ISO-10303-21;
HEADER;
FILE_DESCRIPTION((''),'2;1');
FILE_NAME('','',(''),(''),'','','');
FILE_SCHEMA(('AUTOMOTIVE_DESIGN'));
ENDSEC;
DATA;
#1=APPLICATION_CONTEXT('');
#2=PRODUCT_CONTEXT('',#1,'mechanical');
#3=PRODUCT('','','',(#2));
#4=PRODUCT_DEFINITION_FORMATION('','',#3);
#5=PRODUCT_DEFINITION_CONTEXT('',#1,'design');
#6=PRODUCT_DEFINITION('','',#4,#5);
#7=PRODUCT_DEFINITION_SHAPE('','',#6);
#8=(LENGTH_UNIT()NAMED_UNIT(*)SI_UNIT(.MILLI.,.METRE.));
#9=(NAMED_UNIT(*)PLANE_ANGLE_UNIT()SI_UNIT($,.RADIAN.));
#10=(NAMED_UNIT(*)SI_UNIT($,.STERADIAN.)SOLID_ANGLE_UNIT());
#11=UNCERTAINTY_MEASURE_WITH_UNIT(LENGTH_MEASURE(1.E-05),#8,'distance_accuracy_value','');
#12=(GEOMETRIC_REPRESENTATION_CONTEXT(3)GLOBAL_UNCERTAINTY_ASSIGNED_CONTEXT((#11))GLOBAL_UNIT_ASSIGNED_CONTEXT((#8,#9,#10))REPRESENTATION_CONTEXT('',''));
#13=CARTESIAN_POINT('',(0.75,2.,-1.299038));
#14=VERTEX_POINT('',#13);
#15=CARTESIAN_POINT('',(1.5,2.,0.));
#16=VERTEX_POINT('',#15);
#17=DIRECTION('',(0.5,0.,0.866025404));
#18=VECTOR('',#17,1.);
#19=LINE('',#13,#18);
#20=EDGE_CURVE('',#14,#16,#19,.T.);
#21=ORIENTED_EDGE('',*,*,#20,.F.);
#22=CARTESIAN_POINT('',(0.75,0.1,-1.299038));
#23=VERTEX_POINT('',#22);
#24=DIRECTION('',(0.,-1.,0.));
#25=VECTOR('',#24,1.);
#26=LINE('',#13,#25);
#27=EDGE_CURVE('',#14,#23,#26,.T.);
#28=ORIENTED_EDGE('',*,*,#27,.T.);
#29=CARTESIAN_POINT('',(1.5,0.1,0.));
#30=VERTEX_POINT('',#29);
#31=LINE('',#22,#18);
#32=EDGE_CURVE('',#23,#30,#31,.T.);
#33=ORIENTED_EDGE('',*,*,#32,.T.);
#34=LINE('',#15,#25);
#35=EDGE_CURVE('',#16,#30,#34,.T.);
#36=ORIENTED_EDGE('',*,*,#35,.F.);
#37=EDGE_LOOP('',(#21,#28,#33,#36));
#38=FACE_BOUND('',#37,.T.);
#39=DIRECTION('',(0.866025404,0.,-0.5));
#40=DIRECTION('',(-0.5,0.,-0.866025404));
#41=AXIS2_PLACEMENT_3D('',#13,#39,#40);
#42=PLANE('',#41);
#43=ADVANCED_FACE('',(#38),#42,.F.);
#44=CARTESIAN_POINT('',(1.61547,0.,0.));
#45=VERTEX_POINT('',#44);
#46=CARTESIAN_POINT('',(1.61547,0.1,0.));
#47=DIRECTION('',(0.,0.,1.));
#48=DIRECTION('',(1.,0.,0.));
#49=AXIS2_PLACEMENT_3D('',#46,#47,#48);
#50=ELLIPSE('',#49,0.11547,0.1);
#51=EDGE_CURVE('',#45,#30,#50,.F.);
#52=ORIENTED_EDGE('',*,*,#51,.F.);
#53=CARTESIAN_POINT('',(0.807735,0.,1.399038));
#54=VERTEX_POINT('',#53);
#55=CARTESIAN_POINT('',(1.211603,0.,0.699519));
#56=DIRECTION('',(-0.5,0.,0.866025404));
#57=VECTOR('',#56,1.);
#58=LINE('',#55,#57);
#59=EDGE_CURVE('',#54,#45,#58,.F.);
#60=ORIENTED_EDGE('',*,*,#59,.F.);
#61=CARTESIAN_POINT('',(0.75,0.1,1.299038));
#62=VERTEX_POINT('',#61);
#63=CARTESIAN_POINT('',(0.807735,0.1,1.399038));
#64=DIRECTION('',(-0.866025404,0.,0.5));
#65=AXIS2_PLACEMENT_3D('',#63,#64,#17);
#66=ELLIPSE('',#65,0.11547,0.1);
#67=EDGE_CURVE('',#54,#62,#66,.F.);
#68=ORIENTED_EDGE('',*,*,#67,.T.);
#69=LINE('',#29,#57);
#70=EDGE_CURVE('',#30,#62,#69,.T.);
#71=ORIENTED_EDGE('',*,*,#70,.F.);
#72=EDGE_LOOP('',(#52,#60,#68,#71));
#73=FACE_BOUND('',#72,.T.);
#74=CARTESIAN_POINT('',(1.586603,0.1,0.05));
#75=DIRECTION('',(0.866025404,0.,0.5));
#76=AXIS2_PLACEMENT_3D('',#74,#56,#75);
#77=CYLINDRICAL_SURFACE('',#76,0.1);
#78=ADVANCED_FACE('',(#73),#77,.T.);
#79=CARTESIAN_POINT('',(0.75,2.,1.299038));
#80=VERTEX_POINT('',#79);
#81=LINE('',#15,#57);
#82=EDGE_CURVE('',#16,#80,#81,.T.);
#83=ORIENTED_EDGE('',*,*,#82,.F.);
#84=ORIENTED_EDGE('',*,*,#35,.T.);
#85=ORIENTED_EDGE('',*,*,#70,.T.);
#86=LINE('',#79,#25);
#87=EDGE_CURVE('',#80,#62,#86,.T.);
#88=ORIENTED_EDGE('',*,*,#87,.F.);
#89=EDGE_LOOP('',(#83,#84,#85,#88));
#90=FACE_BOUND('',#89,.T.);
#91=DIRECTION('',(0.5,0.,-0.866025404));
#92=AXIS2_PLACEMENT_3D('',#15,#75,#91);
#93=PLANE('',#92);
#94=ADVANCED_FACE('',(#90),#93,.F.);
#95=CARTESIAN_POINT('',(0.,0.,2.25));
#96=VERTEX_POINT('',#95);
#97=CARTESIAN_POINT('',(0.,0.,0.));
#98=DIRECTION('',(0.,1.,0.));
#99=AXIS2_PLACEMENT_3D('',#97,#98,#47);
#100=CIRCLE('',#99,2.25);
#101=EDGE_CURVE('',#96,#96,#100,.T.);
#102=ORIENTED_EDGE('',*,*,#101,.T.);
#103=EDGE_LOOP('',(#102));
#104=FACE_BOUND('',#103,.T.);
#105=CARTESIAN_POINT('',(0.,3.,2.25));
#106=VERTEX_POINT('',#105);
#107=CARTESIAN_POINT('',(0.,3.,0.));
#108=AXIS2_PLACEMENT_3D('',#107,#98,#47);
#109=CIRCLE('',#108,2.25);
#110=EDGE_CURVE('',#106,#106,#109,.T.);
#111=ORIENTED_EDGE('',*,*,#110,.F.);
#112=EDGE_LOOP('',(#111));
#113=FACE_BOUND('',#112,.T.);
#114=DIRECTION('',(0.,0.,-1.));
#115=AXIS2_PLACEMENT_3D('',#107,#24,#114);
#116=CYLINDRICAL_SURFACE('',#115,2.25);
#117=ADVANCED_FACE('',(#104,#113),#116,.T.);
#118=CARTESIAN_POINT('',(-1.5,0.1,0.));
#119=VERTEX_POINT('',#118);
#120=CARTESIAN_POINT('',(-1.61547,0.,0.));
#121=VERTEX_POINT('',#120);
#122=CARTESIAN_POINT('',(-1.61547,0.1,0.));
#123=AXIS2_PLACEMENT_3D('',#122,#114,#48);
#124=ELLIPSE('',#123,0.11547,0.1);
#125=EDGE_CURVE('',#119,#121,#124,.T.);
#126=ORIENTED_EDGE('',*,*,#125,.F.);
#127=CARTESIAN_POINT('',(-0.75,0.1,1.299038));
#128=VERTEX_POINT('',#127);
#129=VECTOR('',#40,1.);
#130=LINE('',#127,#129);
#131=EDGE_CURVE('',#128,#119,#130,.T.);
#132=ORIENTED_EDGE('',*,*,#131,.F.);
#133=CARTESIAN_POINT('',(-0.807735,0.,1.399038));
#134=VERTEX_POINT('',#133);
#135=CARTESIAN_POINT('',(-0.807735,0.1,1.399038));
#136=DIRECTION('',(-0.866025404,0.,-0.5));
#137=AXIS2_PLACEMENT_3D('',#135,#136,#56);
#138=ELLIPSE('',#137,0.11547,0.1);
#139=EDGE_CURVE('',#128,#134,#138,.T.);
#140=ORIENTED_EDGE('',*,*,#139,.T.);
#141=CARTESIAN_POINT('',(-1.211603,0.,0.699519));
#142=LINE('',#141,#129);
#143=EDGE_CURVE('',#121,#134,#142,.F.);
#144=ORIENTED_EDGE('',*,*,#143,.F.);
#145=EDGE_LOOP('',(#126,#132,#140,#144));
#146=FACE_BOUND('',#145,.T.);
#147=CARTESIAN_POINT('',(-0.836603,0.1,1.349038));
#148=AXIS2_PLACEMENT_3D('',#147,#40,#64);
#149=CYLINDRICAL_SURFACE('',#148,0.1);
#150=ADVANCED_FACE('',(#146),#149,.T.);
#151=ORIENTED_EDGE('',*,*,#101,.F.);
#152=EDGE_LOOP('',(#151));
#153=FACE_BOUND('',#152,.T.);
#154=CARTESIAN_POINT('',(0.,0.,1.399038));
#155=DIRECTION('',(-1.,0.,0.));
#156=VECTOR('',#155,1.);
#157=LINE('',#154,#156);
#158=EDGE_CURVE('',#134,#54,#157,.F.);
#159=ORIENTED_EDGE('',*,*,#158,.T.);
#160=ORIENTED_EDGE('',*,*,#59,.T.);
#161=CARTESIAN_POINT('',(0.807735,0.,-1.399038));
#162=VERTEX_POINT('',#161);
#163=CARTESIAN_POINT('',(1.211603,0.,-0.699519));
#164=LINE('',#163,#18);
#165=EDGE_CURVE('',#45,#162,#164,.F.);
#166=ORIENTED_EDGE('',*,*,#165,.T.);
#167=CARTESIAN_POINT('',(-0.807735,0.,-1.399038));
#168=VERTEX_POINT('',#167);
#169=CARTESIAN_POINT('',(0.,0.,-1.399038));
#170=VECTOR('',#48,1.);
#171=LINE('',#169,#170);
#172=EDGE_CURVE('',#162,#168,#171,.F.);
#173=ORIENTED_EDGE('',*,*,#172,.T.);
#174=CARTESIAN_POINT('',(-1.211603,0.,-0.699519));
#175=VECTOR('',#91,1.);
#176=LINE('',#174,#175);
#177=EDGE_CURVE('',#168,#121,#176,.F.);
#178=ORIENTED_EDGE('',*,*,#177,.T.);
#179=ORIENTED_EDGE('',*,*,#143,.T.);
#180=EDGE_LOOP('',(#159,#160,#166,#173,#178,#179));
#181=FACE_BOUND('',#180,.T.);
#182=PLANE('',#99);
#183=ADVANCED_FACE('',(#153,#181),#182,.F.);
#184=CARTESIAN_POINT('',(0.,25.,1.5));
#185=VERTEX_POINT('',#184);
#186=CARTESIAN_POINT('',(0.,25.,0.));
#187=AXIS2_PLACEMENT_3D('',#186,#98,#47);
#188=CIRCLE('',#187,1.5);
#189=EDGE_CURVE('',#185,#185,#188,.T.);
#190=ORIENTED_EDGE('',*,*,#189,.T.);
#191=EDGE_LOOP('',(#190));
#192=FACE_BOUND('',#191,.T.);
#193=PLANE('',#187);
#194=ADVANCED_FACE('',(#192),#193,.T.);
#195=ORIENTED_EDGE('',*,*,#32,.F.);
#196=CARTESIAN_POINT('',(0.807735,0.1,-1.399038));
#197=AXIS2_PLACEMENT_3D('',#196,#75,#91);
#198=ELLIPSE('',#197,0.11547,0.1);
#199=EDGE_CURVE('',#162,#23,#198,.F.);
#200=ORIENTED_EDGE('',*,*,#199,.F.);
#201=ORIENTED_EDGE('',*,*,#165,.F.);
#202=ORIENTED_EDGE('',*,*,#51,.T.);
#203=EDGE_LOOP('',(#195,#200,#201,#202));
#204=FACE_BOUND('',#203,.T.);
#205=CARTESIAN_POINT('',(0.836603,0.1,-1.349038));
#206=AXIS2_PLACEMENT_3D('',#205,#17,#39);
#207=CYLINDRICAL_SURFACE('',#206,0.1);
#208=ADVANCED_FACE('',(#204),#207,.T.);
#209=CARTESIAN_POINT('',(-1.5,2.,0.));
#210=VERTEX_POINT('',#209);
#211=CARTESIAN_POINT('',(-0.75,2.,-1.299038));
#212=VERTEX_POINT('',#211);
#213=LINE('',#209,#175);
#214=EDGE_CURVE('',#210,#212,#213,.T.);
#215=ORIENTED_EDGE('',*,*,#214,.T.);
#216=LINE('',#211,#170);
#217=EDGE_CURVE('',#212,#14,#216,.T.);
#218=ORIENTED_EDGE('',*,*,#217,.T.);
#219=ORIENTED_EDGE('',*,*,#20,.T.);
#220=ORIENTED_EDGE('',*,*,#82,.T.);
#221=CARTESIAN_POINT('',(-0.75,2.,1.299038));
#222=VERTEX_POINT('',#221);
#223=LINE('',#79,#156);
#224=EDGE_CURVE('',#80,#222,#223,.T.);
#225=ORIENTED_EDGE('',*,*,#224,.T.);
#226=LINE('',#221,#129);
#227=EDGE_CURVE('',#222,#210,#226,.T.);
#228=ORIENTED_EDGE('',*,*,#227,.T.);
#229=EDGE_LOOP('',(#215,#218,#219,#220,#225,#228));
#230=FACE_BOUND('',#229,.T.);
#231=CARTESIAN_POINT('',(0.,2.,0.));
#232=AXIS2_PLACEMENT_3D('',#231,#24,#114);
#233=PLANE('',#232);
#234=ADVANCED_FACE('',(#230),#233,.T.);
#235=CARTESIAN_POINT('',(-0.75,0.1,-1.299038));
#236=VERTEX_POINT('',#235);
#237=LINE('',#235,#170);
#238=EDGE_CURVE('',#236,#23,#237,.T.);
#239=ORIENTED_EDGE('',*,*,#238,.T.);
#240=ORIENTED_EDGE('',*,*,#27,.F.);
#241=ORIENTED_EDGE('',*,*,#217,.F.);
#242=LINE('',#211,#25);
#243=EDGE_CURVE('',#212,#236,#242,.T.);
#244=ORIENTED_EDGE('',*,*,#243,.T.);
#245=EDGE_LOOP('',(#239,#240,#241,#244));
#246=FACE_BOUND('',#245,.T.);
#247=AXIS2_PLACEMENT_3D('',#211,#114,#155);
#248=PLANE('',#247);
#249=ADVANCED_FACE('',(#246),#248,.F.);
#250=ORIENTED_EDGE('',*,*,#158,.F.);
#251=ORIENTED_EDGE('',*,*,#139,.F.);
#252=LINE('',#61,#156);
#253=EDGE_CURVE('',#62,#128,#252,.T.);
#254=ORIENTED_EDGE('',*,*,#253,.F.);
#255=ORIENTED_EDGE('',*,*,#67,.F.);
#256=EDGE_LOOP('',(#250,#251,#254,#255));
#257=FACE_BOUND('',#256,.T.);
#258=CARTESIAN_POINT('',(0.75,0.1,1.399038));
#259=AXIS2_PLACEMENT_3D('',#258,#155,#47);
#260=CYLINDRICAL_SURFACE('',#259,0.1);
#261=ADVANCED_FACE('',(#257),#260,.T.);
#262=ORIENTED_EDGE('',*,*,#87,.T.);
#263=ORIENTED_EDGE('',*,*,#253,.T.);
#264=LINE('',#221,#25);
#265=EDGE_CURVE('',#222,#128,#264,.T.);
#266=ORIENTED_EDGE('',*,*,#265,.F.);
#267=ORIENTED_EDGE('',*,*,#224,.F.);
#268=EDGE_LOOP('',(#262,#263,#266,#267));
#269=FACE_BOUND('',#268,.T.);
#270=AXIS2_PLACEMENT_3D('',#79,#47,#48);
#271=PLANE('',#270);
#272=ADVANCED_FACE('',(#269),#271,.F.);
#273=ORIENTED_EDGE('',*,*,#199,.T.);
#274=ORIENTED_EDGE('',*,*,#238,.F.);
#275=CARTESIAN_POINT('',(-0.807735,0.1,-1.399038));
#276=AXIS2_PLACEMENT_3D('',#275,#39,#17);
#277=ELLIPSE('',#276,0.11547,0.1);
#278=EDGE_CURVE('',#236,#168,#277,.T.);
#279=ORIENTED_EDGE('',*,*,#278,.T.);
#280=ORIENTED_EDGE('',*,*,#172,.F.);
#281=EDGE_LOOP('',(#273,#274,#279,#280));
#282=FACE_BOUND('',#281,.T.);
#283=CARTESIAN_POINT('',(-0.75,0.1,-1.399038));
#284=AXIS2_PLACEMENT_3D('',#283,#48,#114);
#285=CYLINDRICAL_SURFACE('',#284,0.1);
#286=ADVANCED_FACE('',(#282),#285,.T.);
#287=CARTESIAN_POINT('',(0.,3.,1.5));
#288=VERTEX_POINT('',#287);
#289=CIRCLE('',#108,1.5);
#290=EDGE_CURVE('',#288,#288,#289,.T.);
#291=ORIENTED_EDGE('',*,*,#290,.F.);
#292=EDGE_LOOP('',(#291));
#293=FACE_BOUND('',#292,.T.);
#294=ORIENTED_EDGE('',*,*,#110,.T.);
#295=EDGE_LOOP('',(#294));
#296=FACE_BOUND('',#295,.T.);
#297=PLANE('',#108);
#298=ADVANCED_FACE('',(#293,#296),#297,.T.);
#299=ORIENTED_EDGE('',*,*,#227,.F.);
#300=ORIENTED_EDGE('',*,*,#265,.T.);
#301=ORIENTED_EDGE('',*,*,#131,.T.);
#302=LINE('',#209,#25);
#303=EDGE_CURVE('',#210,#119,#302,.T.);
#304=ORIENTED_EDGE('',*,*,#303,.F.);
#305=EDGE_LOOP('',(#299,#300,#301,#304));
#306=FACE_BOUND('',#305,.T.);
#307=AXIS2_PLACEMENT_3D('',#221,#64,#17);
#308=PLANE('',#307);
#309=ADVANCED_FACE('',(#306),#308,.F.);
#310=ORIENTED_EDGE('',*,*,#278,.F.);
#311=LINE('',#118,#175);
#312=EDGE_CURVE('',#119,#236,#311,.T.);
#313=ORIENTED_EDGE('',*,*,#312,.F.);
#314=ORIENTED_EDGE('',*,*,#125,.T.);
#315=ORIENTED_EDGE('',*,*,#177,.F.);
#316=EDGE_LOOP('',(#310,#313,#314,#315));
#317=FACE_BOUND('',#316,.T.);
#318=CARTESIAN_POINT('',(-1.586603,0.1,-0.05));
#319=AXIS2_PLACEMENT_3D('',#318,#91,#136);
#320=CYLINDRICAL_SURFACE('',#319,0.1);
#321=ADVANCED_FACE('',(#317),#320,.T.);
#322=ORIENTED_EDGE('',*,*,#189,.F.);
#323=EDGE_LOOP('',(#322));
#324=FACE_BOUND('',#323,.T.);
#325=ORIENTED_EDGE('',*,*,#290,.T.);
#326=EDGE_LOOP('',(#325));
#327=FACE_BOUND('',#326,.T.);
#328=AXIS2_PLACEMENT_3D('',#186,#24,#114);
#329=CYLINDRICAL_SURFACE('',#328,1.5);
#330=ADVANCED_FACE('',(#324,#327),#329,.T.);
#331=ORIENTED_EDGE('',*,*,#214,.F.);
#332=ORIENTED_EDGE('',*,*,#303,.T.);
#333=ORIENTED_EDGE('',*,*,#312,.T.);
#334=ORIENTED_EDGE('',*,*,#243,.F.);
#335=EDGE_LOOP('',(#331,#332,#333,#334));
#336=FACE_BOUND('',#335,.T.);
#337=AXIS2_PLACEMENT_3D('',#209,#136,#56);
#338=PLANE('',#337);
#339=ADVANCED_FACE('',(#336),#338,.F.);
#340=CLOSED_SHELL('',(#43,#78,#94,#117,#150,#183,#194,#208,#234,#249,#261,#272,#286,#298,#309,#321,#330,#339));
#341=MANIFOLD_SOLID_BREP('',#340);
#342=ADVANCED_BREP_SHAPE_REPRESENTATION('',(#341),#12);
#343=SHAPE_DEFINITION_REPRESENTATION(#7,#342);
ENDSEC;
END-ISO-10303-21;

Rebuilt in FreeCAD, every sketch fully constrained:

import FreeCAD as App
import Part
import Sketcher
Q = App.Units.Quantity


def edges_at(feature, points):
    """Names of the edges that pass closest to the given points."""
    edges = feature.Shape.Edges
    near = lambda p: min(range(len(edges)), key=lambda i: edges[i].distToShape(Part.Vertex(*p))[0])
    return sorted({f"Edge{near(p) + 1}" for p in points})


def add_polygon(sketch, points):
    """Adds a closed chain of lines whose ends are joined by coincident constraints."""
    first, n = sketch.GeometryCount, len(points)
    for a, b in zip(points, points[1:] + points[:1]):
        sketch.addGeometry(Part.LineSegment(App.Vector(*a, 0), App.Vector(*b, 0)), False)
    for i in range(n):
        sketch.addConstraint(Sketcher.Constraint("Coincident", first + i, 2, first + (i + 1) % n, 1))

doc = App.newDocument("Part")
body = doc.addObject("PartDesign::Body", "Body")

# Sketch on XZ plane
sketch1 = body.newObject("Sketcher::SketchObject", "Sketch")
sketch1.AttachmentSupport = (doc.getObject("XZ_Plane"), [""])
sketch1.MapMode = "FlatFace"
sketch1.addGeometry(Part.Circle(App.Vector(0, 0, 0), App.Vector(0, 0, 1), 2.2), False)
sketch1.addConstraint([
    Sketcher.Constraint("Coincident", 0, 3, -1, 1),
    Sketcher.Constraint("Diameter", 0, 4.5),
])
pad1 = body.newObject("PartDesign::Pad", "Pad")
pad1.Profile = sketch1
pad1.Length = 3
pad1.Reversed = True

# Sketch on XZ plane
sketch2 = body.newObject("Sketcher::SketchObject", "Sketch001")
sketch2.AttachmentSupport = (doc.getObject("XZ_Plane"), [""])
sketch2.MapMode = "FlatFace"
sketch2.AttachmentOffset = App.Placement(App.Vector(0, 0, -3), App.Rotation())
sketch2.addGeometry(Part.Circle(App.Vector(0, 0, 0), App.Vector(0, 0, 1), 1.5), False)
sketch2.addConstraint([
    Sketcher.Constraint("Coincident", 0, 3, -1, 1),
    Sketcher.Constraint("Diameter", 0, 3.0),
])
pad2 = body.newObject("PartDesign::Pad", "Pad001")
pad2.Profile = sketch2
pad2.Length = 22
pad2.Reversed = True

# Sketch on XZ plane
sketch3 = body.newObject("Sketcher::SketchObject", "Sketch002")
sketch3.AttachmentSupport = (doc.getObject("XZ_Plane"), [""])
sketch3.MapMode = "FlatFace"
add_polygon(sketch3, [(0.8, 1.3), (-0.8, 1.3), (-1.5, 0), (-0.8, -1.3), (0.8, -1.3), (1.5, 0)])  # lines 0-5
sketch3.addConstraint([
    Sketcher.Constraint("Horizontal", 0),
    Sketcher.Constraint("Horizontal", 3),
    Sketcher.Constraint("Symmetric", 0, 2, 3, 2, -1, 1),
    Sketcher.Constraint("Symmetric", 1, 2, 4, 2, -1, 1),
    Sketcher.Constraint("PointOnObject", 1, 2, -1),
    Sketcher.Constraint("Parallel", 2, 5),
    Sketcher.Constraint("Vertical", 0, 2, 2, 2),
    Sketcher.Constraint("Angle", 1, Q("-120 deg")),
    Sketcher.Constraint("DistanceX", 0, 2, 0, 1, 1.5),
    Sketcher.Constraint("DistanceX", 1, 2, 4, 2, 3.0),
])
pocket1 = body.newObject("PartDesign::Pocket", "Pocket")
pocket1.Profile = sketch3
pocket1.Length = 2
doc.recompute()

fillet = body.newObject("PartDesign::Fillet", "Fillet")
fillet.Base = (pocket1, edges_at(pocket1, [
    (1.125, 0, 0.65),
    (0, 0, 1.299),
    (-1.125, 0, 0.65),
    (-1.125, 0, -0.65),
    (0, 0, -1.299),
    (1.125, 0, -0.65),
]))
fillet.Radius = 0.1

doc.recompute()
